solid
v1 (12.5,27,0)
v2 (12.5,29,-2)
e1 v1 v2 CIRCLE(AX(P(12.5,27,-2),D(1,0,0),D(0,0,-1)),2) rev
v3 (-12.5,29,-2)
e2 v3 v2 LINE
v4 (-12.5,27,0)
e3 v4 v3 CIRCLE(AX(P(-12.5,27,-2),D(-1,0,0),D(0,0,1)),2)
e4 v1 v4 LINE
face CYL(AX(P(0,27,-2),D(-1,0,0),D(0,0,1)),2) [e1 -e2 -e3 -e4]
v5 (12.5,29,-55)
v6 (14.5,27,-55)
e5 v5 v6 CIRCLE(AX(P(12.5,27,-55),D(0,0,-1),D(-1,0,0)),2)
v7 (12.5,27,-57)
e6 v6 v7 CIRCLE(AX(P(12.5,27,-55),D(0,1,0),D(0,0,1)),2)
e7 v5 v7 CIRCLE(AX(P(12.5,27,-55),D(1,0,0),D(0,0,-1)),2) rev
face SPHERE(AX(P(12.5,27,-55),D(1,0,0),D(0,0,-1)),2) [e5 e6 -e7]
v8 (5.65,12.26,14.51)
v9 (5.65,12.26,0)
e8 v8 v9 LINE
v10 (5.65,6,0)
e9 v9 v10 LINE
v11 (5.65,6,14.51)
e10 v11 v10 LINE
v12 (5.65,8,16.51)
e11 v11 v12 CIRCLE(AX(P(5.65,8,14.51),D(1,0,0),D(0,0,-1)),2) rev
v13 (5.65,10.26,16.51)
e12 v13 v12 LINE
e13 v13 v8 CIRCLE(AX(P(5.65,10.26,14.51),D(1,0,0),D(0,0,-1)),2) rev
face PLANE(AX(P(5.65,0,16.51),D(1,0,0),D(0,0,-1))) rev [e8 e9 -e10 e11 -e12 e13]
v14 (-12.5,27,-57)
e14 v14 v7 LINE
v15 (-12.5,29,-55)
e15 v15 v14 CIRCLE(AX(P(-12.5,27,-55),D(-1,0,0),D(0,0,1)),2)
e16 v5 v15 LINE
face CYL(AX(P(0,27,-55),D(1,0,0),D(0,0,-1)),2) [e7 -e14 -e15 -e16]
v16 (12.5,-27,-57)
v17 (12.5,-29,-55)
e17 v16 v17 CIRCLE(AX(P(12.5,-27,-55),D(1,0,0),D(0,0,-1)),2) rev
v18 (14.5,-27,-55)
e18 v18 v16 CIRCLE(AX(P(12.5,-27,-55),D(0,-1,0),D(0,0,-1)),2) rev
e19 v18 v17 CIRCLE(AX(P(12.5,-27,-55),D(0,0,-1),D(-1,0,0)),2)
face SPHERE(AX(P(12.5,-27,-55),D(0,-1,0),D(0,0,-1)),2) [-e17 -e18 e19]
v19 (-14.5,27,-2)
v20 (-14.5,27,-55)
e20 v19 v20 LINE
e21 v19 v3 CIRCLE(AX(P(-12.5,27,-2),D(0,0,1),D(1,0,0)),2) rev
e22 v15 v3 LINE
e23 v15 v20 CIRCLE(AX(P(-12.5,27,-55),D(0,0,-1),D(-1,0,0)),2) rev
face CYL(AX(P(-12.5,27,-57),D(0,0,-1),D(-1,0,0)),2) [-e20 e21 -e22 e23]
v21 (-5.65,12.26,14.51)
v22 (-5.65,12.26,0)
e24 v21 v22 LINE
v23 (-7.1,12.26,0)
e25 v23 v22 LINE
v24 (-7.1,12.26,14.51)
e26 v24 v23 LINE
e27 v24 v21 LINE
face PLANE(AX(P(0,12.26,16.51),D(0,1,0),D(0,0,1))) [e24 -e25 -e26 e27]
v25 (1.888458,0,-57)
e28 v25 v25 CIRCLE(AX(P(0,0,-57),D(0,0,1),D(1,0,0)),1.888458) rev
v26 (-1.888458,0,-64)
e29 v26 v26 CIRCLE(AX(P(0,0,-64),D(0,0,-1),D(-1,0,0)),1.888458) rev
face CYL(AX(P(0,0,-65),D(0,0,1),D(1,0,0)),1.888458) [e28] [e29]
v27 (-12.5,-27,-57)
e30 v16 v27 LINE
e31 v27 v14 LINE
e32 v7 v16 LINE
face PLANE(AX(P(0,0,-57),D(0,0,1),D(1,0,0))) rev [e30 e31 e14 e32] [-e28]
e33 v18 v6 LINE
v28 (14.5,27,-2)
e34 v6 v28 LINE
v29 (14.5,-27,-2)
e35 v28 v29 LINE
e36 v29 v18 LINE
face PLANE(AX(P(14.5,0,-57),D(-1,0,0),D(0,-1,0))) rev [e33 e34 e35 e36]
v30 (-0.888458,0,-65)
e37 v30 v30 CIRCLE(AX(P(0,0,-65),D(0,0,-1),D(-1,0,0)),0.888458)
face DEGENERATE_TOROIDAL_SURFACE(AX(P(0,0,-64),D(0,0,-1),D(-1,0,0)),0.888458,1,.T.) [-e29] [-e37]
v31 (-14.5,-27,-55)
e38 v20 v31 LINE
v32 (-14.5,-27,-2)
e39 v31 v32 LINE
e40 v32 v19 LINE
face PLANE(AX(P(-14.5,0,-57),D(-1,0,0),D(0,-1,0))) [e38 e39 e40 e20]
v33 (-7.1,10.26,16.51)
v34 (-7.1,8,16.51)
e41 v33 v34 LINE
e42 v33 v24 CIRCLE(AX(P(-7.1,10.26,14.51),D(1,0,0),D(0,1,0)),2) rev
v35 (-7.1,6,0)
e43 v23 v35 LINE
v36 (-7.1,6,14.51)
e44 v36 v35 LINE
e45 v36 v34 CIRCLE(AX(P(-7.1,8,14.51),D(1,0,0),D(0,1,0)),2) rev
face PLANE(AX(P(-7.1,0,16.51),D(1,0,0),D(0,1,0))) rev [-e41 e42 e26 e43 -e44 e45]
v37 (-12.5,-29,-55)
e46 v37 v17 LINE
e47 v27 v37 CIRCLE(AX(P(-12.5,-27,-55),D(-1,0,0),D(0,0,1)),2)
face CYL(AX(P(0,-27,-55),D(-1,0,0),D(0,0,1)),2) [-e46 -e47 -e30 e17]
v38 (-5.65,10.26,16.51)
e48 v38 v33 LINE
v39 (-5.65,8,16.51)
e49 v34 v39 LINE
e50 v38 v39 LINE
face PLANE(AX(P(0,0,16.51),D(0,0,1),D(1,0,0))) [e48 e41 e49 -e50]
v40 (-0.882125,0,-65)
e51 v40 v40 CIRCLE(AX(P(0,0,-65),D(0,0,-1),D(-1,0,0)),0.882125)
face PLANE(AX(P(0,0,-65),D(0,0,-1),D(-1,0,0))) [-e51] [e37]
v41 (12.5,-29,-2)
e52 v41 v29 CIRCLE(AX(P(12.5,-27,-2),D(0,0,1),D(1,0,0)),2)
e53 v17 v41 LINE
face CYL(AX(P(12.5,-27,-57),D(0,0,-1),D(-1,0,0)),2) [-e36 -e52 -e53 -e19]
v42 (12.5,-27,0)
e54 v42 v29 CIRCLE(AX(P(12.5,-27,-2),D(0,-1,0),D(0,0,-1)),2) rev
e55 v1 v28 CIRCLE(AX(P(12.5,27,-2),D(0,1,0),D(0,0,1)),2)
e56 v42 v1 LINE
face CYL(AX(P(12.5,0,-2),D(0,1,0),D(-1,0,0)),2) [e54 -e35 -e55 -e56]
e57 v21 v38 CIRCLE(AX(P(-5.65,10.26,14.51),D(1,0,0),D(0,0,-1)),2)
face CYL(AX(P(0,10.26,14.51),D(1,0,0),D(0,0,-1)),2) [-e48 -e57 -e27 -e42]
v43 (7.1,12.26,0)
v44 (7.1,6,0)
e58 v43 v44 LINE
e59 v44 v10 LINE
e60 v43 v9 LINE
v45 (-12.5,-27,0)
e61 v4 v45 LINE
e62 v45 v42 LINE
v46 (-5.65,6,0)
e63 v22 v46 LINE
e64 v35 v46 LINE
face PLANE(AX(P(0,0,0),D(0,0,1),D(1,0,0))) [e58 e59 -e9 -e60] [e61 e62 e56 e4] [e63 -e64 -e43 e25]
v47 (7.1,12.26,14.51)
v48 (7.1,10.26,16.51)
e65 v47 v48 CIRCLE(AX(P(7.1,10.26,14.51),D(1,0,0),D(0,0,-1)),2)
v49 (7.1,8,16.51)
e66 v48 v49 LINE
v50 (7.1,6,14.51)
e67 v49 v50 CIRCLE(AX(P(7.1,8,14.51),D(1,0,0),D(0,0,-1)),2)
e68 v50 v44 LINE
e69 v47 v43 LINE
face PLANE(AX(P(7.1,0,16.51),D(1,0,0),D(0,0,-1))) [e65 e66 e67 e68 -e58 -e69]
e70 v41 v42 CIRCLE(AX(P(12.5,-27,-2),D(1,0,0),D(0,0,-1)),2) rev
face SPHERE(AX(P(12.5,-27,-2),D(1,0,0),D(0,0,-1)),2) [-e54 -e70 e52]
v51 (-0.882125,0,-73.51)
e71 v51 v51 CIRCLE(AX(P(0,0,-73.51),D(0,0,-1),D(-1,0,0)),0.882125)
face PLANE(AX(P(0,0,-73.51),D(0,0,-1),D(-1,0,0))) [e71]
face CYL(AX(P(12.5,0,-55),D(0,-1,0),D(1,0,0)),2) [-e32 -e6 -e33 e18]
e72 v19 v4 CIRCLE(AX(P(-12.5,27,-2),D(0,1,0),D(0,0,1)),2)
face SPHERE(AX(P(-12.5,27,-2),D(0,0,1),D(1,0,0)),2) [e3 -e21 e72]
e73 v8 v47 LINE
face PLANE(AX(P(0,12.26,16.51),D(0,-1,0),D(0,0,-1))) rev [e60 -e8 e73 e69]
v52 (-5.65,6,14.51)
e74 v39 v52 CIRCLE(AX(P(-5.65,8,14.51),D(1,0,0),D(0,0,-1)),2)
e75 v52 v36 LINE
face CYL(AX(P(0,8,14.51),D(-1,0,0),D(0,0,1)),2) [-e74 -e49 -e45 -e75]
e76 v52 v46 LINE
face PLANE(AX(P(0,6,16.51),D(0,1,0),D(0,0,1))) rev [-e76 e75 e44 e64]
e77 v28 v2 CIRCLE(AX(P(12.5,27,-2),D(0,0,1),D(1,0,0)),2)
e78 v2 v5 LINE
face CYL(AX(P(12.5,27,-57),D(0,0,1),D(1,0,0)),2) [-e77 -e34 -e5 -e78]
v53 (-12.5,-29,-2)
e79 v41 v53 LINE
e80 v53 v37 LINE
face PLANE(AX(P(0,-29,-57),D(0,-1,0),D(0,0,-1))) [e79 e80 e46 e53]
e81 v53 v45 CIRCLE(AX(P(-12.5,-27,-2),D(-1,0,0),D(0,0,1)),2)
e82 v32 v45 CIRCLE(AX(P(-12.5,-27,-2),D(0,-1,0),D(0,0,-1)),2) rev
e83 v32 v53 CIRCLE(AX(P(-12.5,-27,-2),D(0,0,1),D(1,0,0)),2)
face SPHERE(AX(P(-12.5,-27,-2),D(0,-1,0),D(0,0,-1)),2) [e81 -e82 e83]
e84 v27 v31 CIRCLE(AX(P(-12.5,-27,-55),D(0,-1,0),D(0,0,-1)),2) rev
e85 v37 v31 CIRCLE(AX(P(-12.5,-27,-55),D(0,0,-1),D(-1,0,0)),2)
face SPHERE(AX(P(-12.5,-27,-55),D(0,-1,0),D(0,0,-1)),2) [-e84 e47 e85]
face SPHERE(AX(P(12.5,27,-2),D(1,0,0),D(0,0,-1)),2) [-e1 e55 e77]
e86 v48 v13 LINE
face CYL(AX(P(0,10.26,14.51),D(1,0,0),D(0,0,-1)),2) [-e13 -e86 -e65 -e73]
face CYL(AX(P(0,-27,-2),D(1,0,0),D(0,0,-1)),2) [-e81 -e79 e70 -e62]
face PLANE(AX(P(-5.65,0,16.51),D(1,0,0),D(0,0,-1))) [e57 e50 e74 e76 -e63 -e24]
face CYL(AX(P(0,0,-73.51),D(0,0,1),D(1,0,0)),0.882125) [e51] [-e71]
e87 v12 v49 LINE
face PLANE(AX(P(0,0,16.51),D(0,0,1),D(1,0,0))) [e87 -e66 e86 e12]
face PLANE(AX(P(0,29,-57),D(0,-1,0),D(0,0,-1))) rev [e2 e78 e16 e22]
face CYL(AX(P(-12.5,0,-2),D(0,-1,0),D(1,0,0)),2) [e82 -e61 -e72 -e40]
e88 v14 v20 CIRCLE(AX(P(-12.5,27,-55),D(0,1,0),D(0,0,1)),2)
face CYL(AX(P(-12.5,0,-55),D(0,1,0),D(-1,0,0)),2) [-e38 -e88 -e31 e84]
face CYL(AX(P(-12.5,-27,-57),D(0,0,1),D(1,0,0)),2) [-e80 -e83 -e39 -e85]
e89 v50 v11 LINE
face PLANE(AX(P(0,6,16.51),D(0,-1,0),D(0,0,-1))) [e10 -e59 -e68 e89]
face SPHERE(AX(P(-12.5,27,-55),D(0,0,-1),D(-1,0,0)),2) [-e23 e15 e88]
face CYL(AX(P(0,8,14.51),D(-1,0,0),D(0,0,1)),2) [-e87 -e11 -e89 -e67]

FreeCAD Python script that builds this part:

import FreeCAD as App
import Part
import Sketcher
from FreeCAD import Vector
Q = App.Units.Quantity


def edges_at(feature, points):
    """Names of the edges that pass closest to the given points."""
    edges = feature.Shape.Edges
    near = lambda p: min(range(len(edges)), key=lambda i: edges[i].distToShape(Part.Vertex(*p))[0])
    return sorted({f"Edge{near(p) + 1}" for p in points})


def add_polygon(sketch, points):
    """Adds a closed chain of lines whose ends are joined by coincident constraints."""
    first, n = sketch.GeometryCount, len(points)
    for a, b in zip(points, points[1:] + points[:1]):
        sketch.addGeometry(Part.LineSegment(App.Vector(*a, 0), App.Vector(*b, 0)), False)
    for i in range(n):
        sketch.addConstraint(Sketcher.Constraint("Coincident", first + i, 2, first + (i + 1) % n, 1))

doc = App.newDocument("Part")
params = doc.addObject("Spreadsheet::Sheet", "Params")
for row, (alias, value) in enumerate([
    ("sketch1_width", "29 mm"),
    ("sketch1_height", "58 mm"),
    ("pad1_length", "57 mm"),
    ("sketch2_width", "1.45 mm"),
    ("sketch2_height", "6.26 mm"),
    ("pad2_length", "16.51 mm"),
    ("fillet_radius", "2 mm"),
    ("pad3_length", "16.51 mm"),
    ("pad4_length", "8 mm"),
    ("fillet2_radius", "1 mm"),
], start=1):
    params.set(f"A{row}", alias)
    params.set(f"B{row}", "=" + value)
    params.setAlias(f"B{row}", alias)

body = doc.addObject("PartDesign::Body", "Body")

sketch1 = body.newObject("Sketcher::SketchObject", "Sketch")
sketch1.AttachmentSupport = (doc.getObject("XY_Plane"), [""])
sketch1.MapMode = "FlatFace"
add_polygon(sketch1, [(-14.5, 29), (-14.5, -29), (14.5, -29), (14.5, 29)])
sketch1.addConstraint(Sketcher.Constraint("Vertical", 0))
sketch1.addConstraint(Sketcher.Constraint("Horizontal", 1))
sketch1.addConstraint(Sketcher.Constraint("Vertical", 2))
sketch1.addConstraint(Sketcher.Constraint("Horizontal", 3))
sketch1.addConstraint(Sketcher.Constraint("Symmetric", 0, 2, 2, 2, -1, 1))
sketch1.addConstraint(Sketcher.Constraint("DistanceX", 1, 1, 1, 2, Q("29 mm")))
sketch1.addConstraint(Sketcher.Constraint("DistanceY", 0, 2, 0, 1, Q("58 mm")))
sketch1.setExpression("Constraints[9]", "Params.sketch1_width")
sketch1.setExpression("Constraints[10]", "Params.sketch1_height")
pad1 = body.newObject("PartDesign::Pad", "Pad")
pad1.Profile = sketch1
pad1.setExpression("Length", "Params.pad1_length")
pad1.Reversed = True

sketch2 = body.newObject("Sketcher::SketchObject", "Sketch001")
sketch2.AttachmentSupport = (doc.getObject("XY_Plane"), [""])
sketch2.MapMode = "FlatFace"
add_polygon(sketch2, [(-7.1, 12.26), (-7.1, 6), (-5.65, 6), (-5.65, 12.26)])
add_polygon(sketch2, [(5.65, 12.26), (5.65, 6), (7.1, 6), (7.1, 12.26)])
sketch2.addConstraint(Sketcher.Constraint("Vertical", 0))
sketch2.addConstraint(Sketcher.Constraint("Horizontal", 1))
sketch2.addConstraint(Sketcher.Constraint("Vertical", 2))
sketch2.addConstraint(Sketcher.Constraint("Horizontal", 3))
sketch2.addConstraint(Sketcher.Constraint("Vertical", 4))
sketch2.addConstraint(Sketcher.Constraint("Horizontal", 5))
sketch2.addConstraint(Sketcher.Constraint("Vertical", 6))
sketch2.addConstraint(Sketcher.Constraint("Horizontal", 7))
sketch2.addConstraint(Sketcher.Constraint("Symmetric", 1, 2, 4, 2, -2))
sketch2.addConstraint(Sketcher.Constraint("Symmetric", 3, 2, 6, 2, -2))
sketch2.addConstraint(Sketcher.Constraint("DistanceY", -1, 1, 0, 2, Q("6 mm")))
sketch2.addConstraint(Sketcher.Constraint("DistanceX", 1, 1, 1, 2, Q("1.45 mm")))
sketch2.addConstraint(Sketcher.Constraint("DistanceY", 0, 2, 0, 1, Q("6.26 mm")))
sketch2.addConstraint(Sketcher.Constraint("DistanceX", 0, 2, -1, 1, Q("7.1 mm")))
sketch2.setExpression("Constraints[19]", "Params.sketch2_width")
sketch2.setExpression("Constraints[20]", "Params.sketch2_height")
pad2 = body.newObject("PartDesign::Pad", "Pad001")
pad2.Profile = sketch2
pad2.setExpression("Length", "Params.pad2_length")
doc.recompute()

fillet = body.newObject("PartDesign::Fillet", "Fillet")
fillet.Base = (pad2, edges_at(pad2, [
    (0, 29, -57),
    (-14.5, 0, -57),
    (-6.375, 12.26, 16.51),
    (-6.375, 6, 16.51),
    (0, -29, -57),
    (6.375, 6, 16.51),
    (6.375, 12.26, 16.51),
    (14.5, 0, -57),
    (0, -29, 0),
    (-14.5, 0, 0),
    (0, 29, 0),
    (14.5, 0, 0),
    (14.5, -29, -28.5),
    (-14.5, -29, -28.5),
    (-14.5, 29, -28.5),
    (14.5, 29, -28.5),
]))
fillet.setExpression("Radius", "Params.fillet_radius")

sketch3 = body.newObject("Sketcher::SketchObject", "Sketch002")
sketch3.AttachmentSupport = (doc.getObject("XY_Plane"), [""])
sketch3.MapMode = "FlatFace"
sketch3.AttachmentOffset = App.Placement(Vector(0, 0, -57), App.Rotation())
sketch3.addGeometry(Part.Circle(Vector(0, 0, 0), Vector(0, 0, 1), 0.882125), False)
sketch3.addConstraint(Sketcher.Constraint("Coincident", 0, 3, -1, 1))
sketch3.addConstraint(Sketcher.Constraint("Diameter", 0, Q("1.764249 mm")))
pad3 = body.newObject("PartDesign::Pad", "Pad002")
pad3.Profile = sketch3
pad3.setExpression("Length", "Params.pad3_length")
pad3.Reversed = True

sketch4 = body.newObject("Sketcher::SketchObject", "Sketch003")
sketch4.AttachmentSupport = (doc.getObject("XY_Plane"), [""])
sketch4.MapMode = "FlatFace"
sketch4.AttachmentOffset = App.Placement(Vector(0, 0, -57), App.Rotation())
sketch4.addGeometry(Part.Circle(Vector(0, 0, 0), Vector(0, 0, 1), 1.888458), False)
sketch4.addGeometry(Part.Circle(Vector(0, 0, 0), Vector(0, 0, 1), 0.882125), False)
sketch4.addConstraint(Sketcher.Constraint("Coincident", 0, 3, -1, 1))
sketch4.addConstraint(Sketcher.Constraint("Coincident", 1, 3, -1, 1))
sketch4.addConstraint(Sketcher.Constraint("Diameter", 1, Q("1.764249 mm")))
sketch4.addConstraint(Sketcher.Constraint("Diameter", 0, Q("3.776916 mm")))
pad4 = body.newObject("PartDesign::Pad", "Pad003")
pad4.Profile = sketch4
pad4.setExpression("Length", "Params.pad4_length")
pad4.Reversed = True
doc.recompute()

fillet2 = body.newObject("PartDesign::Fillet", "Fillet001")
fillet2.Base = (pad4, edges_at(pad4, [(-1.888, 0, -65)]))
fillet2.setExpression("Radius", "Params.fillet2_radius")

doc.recompute()
